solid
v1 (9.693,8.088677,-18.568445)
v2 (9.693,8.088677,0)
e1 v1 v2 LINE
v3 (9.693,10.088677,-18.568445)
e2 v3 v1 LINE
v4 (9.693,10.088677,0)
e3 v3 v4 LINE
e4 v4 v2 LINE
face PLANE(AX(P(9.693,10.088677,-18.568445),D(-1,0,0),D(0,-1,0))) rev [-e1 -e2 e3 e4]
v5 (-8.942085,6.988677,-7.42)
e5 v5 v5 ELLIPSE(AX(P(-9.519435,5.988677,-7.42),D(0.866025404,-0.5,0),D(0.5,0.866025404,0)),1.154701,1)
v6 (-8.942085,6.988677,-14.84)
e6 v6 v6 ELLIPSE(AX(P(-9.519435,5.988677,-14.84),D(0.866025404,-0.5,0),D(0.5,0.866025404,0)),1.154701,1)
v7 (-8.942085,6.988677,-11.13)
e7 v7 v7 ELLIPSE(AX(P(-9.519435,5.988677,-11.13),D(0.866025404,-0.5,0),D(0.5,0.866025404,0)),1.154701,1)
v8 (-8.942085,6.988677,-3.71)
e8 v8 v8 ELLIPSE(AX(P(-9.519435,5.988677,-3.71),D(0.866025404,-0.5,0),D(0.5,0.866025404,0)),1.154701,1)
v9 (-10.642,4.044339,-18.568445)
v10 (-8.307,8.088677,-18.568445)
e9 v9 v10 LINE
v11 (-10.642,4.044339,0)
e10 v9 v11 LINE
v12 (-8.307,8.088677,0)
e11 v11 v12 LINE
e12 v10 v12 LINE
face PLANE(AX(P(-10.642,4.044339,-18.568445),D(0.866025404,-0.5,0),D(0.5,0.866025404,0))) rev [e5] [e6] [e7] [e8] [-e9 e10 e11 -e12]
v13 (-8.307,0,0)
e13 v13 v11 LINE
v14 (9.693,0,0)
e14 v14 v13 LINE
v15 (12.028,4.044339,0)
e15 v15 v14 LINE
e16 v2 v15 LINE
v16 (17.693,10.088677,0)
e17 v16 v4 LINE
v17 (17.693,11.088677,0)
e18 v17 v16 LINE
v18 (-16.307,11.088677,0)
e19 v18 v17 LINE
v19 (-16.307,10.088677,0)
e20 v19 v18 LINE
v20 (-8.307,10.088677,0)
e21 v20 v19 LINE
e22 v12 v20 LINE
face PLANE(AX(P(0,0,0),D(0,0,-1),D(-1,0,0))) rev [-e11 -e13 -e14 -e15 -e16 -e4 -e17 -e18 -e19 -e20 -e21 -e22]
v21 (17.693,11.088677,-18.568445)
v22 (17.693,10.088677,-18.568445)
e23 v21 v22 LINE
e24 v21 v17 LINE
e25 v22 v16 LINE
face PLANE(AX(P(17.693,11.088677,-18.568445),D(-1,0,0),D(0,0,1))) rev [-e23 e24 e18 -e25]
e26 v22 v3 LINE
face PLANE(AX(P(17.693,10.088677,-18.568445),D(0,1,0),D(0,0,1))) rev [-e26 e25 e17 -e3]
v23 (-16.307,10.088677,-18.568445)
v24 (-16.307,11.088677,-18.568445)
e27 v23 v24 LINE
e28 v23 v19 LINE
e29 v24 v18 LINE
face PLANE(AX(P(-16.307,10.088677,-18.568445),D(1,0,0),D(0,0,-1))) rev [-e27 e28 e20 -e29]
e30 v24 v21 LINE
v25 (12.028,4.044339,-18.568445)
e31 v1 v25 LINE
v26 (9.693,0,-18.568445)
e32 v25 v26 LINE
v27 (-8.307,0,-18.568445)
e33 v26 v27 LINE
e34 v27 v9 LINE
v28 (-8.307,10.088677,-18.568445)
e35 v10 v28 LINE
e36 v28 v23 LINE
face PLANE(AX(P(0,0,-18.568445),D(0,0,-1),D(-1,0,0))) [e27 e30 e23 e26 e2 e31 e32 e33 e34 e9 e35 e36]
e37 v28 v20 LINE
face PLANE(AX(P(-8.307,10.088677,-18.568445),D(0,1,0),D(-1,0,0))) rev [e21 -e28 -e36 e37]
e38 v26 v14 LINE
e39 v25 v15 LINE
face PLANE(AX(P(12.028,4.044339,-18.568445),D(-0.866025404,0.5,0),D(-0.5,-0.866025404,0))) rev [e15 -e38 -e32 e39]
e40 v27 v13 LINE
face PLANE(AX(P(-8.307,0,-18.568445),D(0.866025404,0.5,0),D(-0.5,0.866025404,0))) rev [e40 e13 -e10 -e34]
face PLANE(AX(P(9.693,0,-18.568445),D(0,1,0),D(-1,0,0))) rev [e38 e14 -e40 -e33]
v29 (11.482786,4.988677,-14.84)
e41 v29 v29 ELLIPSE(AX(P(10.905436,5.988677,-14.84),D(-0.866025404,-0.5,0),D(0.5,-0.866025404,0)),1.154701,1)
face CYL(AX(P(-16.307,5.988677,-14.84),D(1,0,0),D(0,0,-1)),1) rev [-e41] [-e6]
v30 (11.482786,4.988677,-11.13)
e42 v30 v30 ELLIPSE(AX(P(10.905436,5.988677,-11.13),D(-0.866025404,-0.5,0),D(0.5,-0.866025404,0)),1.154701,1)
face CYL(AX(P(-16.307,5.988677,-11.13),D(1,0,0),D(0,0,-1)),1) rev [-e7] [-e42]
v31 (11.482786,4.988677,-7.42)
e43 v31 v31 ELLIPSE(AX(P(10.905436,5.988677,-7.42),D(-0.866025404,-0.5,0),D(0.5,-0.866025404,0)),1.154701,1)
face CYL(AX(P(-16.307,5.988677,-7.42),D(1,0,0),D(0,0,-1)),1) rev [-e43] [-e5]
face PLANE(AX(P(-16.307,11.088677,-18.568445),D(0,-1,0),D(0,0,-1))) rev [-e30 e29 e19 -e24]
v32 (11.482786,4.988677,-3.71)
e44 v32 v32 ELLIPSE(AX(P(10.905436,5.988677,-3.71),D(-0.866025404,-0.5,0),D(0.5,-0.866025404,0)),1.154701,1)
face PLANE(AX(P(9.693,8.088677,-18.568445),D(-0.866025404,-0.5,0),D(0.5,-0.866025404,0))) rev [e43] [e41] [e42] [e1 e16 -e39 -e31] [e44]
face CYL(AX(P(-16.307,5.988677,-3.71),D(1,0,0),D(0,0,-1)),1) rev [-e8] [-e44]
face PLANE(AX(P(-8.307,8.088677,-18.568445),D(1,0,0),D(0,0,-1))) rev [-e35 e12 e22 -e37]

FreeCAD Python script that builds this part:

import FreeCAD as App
import Part
import Sketcher
Q = App.Units.Quantity

doc = App.newDocument("Part")
body = doc.addObject("PartDesign::Body", "Body")

sketch1 = body.newObject("Sketcher::SketchObject", "Sketch")
sketch1.AttachmentSupport = (doc.getObject("XY_Plane"), [""])
sketch1.MapMode = "FlatFace"
sketch1.addGeometry(Part.LineSegment(App.Vector(-8.3, 0, 0), App.Vector(9.7, 0, 0)), False)
sketch1.addGeometry(Part.LineSegment(App.Vector(9.7, 0, 0), App.Vector(12, 4, 0)), False)
sketch1.addGeometry(Part.LineSegment(App.Vector(12, 4, 0), App.Vector(9.7, 8.1, 0)), False)
sketch1.addGeometry(Part.LineSegment(App.Vector(9.7, 8.1, 0), App.Vector(9.7, 10.1, 0)), False)
sketch1.addGeometry(Part.LineSegment(App.Vector(9.7, 10.1, 0), App.Vector(17.7, 10.1, 0)), False)
sketch1.addGeometry(Part.LineSegment(App.Vector(17.7, 10.1, 0), App.Vector(17.7, 11.1, 0)), False)
sketch1.addGeometry(Part.LineSegment(App.Vector(17.7, 11.1, 0), App.Vector(-16.3, 11.1, 0)), False)
sketch1.addGeometry(Part.LineSegment(App.Vector(-16.3, 11.1, 0), App.Vector(-16.3, 10.1, 0)), False)
sketch1.addGeometry(Part.LineSegment(App.Vector(-16.3, 10.1, 0), App.Vector(-8.3, 10.1, 0)), False)
sketch1.addGeometry(Part.LineSegment(App.Vector(-8.3, 10.1, 0), App.Vector(-8.3, 8.1, 0)), False)
sketch1.addGeometry(Part.LineSegment(App.Vector(-8.3, 8.1, 0), App.Vector(-10.6, 4, 0)), False)
sketch1.addGeometry(Part.LineSegment(App.Vector(-10.6, 4, 0), App.Vector(-8.3, 0, 0)), False)
sketch1.addConstraint(Sketcher.Constraint("Coincident", 0, 2, 1, 1))
sketch1.addConstraint(Sketcher.Constraint("Coincident", 1, 2, 2, 1))
sketch1.addConstraint(Sketcher.Constraint("Coincident", 2, 2, 3, 1))
sketch1.addConstraint(Sketcher.Constraint("Coincident", 3, 2, 4, 1))
sketch1.addConstraint(Sketcher.Constraint("Coincident", 4, 2, 5, 1))
sketch1.addConstraint(Sketcher.Constraint("Coincident", 5, 2, 6, 1))
sketch1.addConstraint(Sketcher.Constraint("Coincident", 6, 2, 7, 1))
sketch1.addConstraint(Sketcher.Constraint("Coincident", 7, 2, 8, 1))
sketch1.addConstraint(Sketcher.Constraint("Coincident", 8, 2, 9, 1))
sketch1.addConstraint(Sketcher.Constraint("Coincident", 9, 2, 10, 1))
sketch1.addConstraint(Sketcher.Constraint("Coincident", 10, 2, 11, 1))
sketch1.addConstraint(Sketcher.Constraint("Coincident", 11, 2, 0, 1))
sketch1.addConstraint(Sketcher.Constraint("Horizontal", 0))
sketch1.addConstraint(Sketcher.Constraint("Vertical", 3))
sketch1.addConstraint(Sketcher.Constraint("Horizontal", 4))
sketch1.addConstraint(Sketcher.Constraint("Vertical", 5))
sketch1.addConstraint(Sketcher.Constraint("Horizontal", 6))
sketch1.addConstraint(Sketcher.Constraint("Vertical", 7))
sketch1.addConstraint(Sketcher.Constraint("Horizontal", 8))
sketch1.addConstraint(Sketcher.Constraint("Vertical", 9))
sketch1.addConstraint(Sketcher.Constraint("PointOnObject", 0, 2, -1))
sketch1.addConstraint(Sketcher.Constraint("Parallel", 1, 10))
sketch1.addConstraint(Sketcher.Constraint("Parallel", 2, 11))
sketch1.addConstraint(Sketcher.Constraint("Horizontal", 4, 2, 7, 2))
sketch1.addConstraint(Sketcher.Constraint("Horizontal", 2, 2, 9, 2))
sketch1.addConstraint(Sketcher.Constraint("Horizontal", 1, 2, 10, 2))
sketch1.addConstraint(Sketcher.Constraint("Vertical", 0, 2, 2, 2))
sketch1.addConstraint(Sketcher.Constraint("Vertical", 9, 2, 11, 2))
sketch1.addConstraint(Sketcher.Constraint("Equal", 4, 8))
sketch1.addConstraint(Sketcher.Constraint("DistanceX", 0, 1, 0, 2, Q("18 mm")))
sketch1.addConstraint(Sketcher.Constraint("DistanceX", 4, 1, 4, 2, Q("8 mm")))
sketch1.addConstraint(Sketcher.Constraint("DistanceY", 3, 1, 3, 2, Q("2 mm")))
sketch1.addConstraint(Sketcher.Constraint("DistanceY", 5, 1, 5, 2, Q("1 mm")))
sketch1.addConstraint(Sketcher.Constraint("Angle", 1, Q("60 deg")))
sketch1.addConstraint(Sketcher.Constraint("Distance", 1, Q("4.67 mm")))
sketch1.addConstraint(Sketcher.Constraint("DistanceX", -1, 1, 0, 2, Q("9.693 mm")))
pad1 = body.newObject("PartDesign::Pad", "Pad")
pad1.Profile = sketch1
pad1.Length = 18.568445
pad1.Reversed = True

sketch2 = body.newObject("Sketcher::SketchObject", "Sketch001")
sketch2.AttachmentSupport = (doc.getObject("YZ_Plane"), [""])
sketch2.MapMode = "FlatFace"
sketch2.addGeometry(Part.Circle(App.Vector(6, -3.7, 0), App.Vector(0, 0, 1), 1), False)
sketch2.addGeometry(Part.Circle(App.Vector(6, -7.4, 0), App.Vector(0, 0, 1), 1), False)
sketch2.addGeometry(Part.Circle(App.Vector(6, -11.1, 0), App.Vector(0, 0, 1), 1), False)
sketch2.addGeometry(Part.Circle(App.Vector(6, -14.8, 0), App.Vector(0, 0, 1), 1), False)
sketch2.addConstraint(Sketcher.Constraint("Equal", 0, 1))
sketch2.addConstraint(Sketcher.Constraint("Equal", 1, 2))
sketch2.addConstraint(Sketcher.Constraint("Equal", 2, 3))
sketch2.addConstraint(Sketcher.Constraint("Vertical", 0, 3, 1, 3))
sketch2.addConstraint(Sketcher.Constraint("Vertical", 1, 3, 2, 3))
sketch2.addConstraint(Sketcher.Constraint("Vertical", 2, 3, 3, 3))
sketch2.addConstraint(Sketcher.Constraint("Diameter", 0, Q("2 mm")))
sketch2.addConstraint(Sketcher.Constraint("DistanceY", 0, 3, -1, 1, Q("3.71 mm")))
sketch2.addConstraint(Sketcher.Constraint("DistanceY", 1, 3, -1, 1, Q("7.42 mm")))
sketch2.addConstraint(Sketcher.Constraint("DistanceY", 2, 3, -1, 1, Q("11.13 mm")))
sketch2.addConstraint(Sketcher.Constraint("DistanceY", 3, 3, -1, 1, Q("14.84 mm")))
sketch2.addConstraint(Sketcher.Constraint("DistanceX", -1, 1, 0, 3, Q("5.988677 mm")))
pocket1 = body.newObject("PartDesign::Pocket", "Pocket")
pocket1.Profile = sketch2
pocket1.Type = "ThroughAll"
pocket1.Midplane = True

doc.recompute()
